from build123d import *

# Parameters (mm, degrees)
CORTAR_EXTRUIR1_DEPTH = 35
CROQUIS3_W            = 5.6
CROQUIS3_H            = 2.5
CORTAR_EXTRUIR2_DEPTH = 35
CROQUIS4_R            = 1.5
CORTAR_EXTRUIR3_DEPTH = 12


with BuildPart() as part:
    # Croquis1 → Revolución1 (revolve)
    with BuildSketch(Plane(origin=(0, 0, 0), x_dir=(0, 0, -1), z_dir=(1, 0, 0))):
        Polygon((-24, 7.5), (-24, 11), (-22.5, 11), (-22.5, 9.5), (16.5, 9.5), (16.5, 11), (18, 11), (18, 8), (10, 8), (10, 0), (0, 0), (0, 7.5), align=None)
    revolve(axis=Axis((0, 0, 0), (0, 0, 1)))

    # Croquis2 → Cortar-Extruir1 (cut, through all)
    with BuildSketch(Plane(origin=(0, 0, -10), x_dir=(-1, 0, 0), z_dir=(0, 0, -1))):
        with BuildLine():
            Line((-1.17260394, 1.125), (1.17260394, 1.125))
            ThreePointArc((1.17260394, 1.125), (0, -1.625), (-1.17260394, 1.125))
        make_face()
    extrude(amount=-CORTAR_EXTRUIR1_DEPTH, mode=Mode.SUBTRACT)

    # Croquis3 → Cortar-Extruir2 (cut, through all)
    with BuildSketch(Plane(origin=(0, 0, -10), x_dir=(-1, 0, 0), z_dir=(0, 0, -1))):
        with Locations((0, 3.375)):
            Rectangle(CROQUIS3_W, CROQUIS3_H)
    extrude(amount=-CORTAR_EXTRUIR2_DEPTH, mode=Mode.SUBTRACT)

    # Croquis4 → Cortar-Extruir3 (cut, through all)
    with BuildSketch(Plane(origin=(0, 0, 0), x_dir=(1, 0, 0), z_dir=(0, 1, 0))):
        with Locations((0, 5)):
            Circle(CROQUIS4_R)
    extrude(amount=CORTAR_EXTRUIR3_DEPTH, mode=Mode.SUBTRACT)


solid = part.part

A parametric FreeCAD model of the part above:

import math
import FreeCAD as App
import Part
import Sketcher

V = App.Vector

doc = App.newDocument("Part")
params = doc.addObject("Spreadsheet::Sheet", "Params")
for row, (alias, value) in enumerate([
    ("sketch1_width", "8 mm"),
    ("sketch1_width2", "3 mm"),
    ("sketch1_height", "24 mm"),
    ("sketch1_height2", "10 mm"),
    ("sketch1_height3", "39 mm"),
    ("revolution_angle", "360 deg"),
    ("sketch3_width", "5.6 mm"),
    ("sketch3_height", "2.5 mm"),
    ("sketch4_diameter", "3 mm"),
], start=1):
    params.set(f"A{row}", alias)
    params.set(f"B{row}", "=" + value)
    params.setAlias(f"B{row}", alias)

body = doc.addObject("PartDesign::Body", "Body")

# Sketch on YZ plane
sketch1 = body.newObject("Sketcher::SketchObject", "Sketch")
sketch1.AttachmentSupport = (doc.getObject("YZ_Plane"), [""])
sketch1.MapMode = "FlatFace"
sketch1.addGeometry([
    Part.LineSegment(V(11, 24, 0), V(7.5, 24, 0)),  # 0
    Part.LineSegment(V(7.5, 24, 0), V(7.5, 0, 0)),  # 1
    Part.LineSegment(V(7.5, 0, 0), V(0, 0, 0)),  # 2
    Part.LineSegment(V(0, 0, 0), V(0, -10, 0)),  # 3
    Part.LineSegment(V(0, -10, 0), V(8, -10, 0)),  # 4
    Part.LineSegment(V(8, -10, 0), V(8, -18, 0)),  # 5
    Part.LineSegment(V(8, -18, 0), V(11, -18, 0)),  # 6
    Part.LineSegment(V(11, -18, 0), V(11, -16.5, 0)),  # 7
    Part.LineSegment(V(11, -16.5, 0), V(9.5, -16.5, 0)),  # 8
    Part.LineSegment(V(9.5, -16.5, 0), V(9.5, 22.5, 0)),  # 9
    Part.LineSegment(V(9.5, 22.5, 0), V(11, 22.5, 0)),  # 10
    Part.LineSegment(V(11, 22.5, 0), V(11, 24, 0)),  # 11
], False)
sketch1.addConstraint([
    Sketcher.Constraint("Coincident", 0, 2, 1, 1),
    Sketcher.Constraint("Coincident", 1, 2, 2, 1),
    Sketcher.Constraint("Coincident", 2, 2, 3, 1),
    Sketcher.Constraint("Coincident", 3, 2, 4, 1),
    Sketcher.Constraint("Coincident", 4, 2, 5, 1),
    Sketcher.Constraint("Coincident", 5, 2, 6, 1),
    Sketcher.Constraint("Coincident", 6, 2, 7, 1),
    Sketcher.Constraint("Coincident", 7, 2, 8, 1),
    Sketcher.Constraint("Coincident", 8, 2, 9, 1),
    Sketcher.Constraint("Coincident", 9, 2, 10, 1),
    Sketcher.Constraint("Coincident", 10, 2, 11, 1),
    Sketcher.Constraint("Coincident", 11, 2, 0, 1),
    Sketcher.Constraint("Horizontal", 0),
    Sketcher.Constraint("Vertical", 1),
    Sketcher.Constraint("Horizontal", 2),
    Sketcher.Constraint("Vertical", 3),
    Sketcher.Constraint("Horizontal", 4),
    Sketcher.Constraint("Vertical", 5),
    Sketcher.Constraint("Horizontal", 6),
    Sketcher.Constraint("Vertical", 7),
    Sketcher.Constraint("Horizontal", 8),
    Sketcher.Constraint("Vertical", 9),
    Sketcher.Constraint("Horizontal", 10),
    Sketcher.Constraint("Vertical", 11),
    Sketcher.Constraint("Coincident", 2, 2, -1, 1),
    Sketcher.Constraint("Vertical", 7, 2, 10, 2),
    Sketcher.Constraint("Equal", 4, 5),
    Sketcher.Constraint("Equal", 10, 7),
    Sketcher.Constraint("Equal", 7, 11),
    Sketcher.Constraint("DistanceX", 4, 1, 4, 2, 8.0),
    Sketcher.Constraint("DistanceX", 6, 1, 6, 2, 3.0),
    Sketcher.Constraint("DistanceY", 1, 2, 1, 1, 24.0),
    Sketcher.Constraint("DistanceY", 3, 2, 3, 1, 10.0),
    Sketcher.Constraint("DistanceY", 9, 1, 9, 2, 39.0),
    Sketcher.Constraint("DistanceX", 0, 2, 0, 1, 3.5),
])
sketch1.setExpression("Constraints[29]", "Params.sketch1_width")
sketch1.setExpression("Constraints[30]", "Params.sketch1_width2")
sketch1.setExpression("Constraints[31]", "Params.sketch1_height")
sketch1.setExpression("Constraints[32]", "Params.sketch1_height2")
sketch1.setExpression("Constraints[33]", "Params.sketch1_height3")
revolution = body.newObject("PartDesign::Revolution", "Revolution")
revolution.Profile = sketch1
revolution.ReferenceAxis = (sketch1, ["V_Axis"])
revolution.setExpression("Angle", "Params.revolution_angle")

# Sketch on XY plane
sketch2 = body.newObject("Sketcher::SketchObject", "Sketch001")
sketch2.AttachmentSupport = (doc.getObject("XY_Plane"), [""])
sketch2.MapMode = "FlatFace"
sketch2.AttachmentOffset = App.Placement(V(0, 0, -10), App.Rotation())
sketch2.addGeometry([
    Part.LineSegment(V(-1.2, 1.1, 0), V(1.2, 1.1, 0)),
    Part.ArcOfCircle(Part.Circle(V(0, 0, 0), V(0, 0, 1), 1.6), math.radians(136), math.radians(404)),
], False)
sketch2.addConstraint([
    Sketcher.Constraint("Coincident", 0, 1, 1, 1),
    Sketcher.Constraint("Coincident", 1, 2, 0, 2),
    Sketcher.Constraint("Horizontal", 0),
    Sketcher.Constraint("Coincident", 1, 3, -1, 1),
    Sketcher.Constraint("Radius", 1, 1.625),
    Sketcher.Constraint("DistanceY", -1, 1, 0, 1, 1.125),
])
pocket1 = body.newObject("PartDesign::Pocket", "Pocket")
pocket1.Profile = sketch2
pocket1.Type = "ThroughAll"
pocket1.Reversed = True

# Sketch on XY plane
sketch3 = body.newObject("Sketcher::SketchObject", "Sketch002")
sketch3.AttachmentSupport = (doc.getObject("XY_Plane"), [""])
sketch3.MapMode = "FlatFace"
sketch3.AttachmentOffset = App.Placement(V(0, 0, -10), App.Rotation())
sketch3.addGeometry([
    Part.LineSegment(V(2.8, 4.6, 0), V(2.8, 2.1, 0)),
    Part.LineSegment(V(2.8, 2.1, 0), V(-2.8, 2.1, 0)),
    Part.LineSegment(V(-2.8, 2.1, 0), V(-2.8, 4.6, 0)),
    Part.LineSegment(V(-2.8, 4.6, 0), V(2.8, 4.6, 0)),
], False)
sketch3.addConstraint([
    Sketcher.Constraint("Coincident", 0, 2, 1, 1),
    Sketcher.Constraint("Coincident", 1, 2, 2, 1),
    Sketcher.Constraint("Coincident", 2, 2, 3, 1),
    Sketcher.Constraint("Coincident", 3, 2, 0, 1),
    Sketcher.Constraint("Vertical", 0),
    Sketcher.Constraint("Horizontal", 1),
    Sketcher.Constraint("Vertical", 2),
    Sketcher.Constraint("Horizontal", 3),
    Sketcher.Constraint("DistanceX", 1, 2, 1, 1, 5.6),
    Sketcher.Constraint("DistanceY", 0, 2, 0, 1, 2.5),
    Sketcher.Constraint("DistanceX", -1, 1, 0, 2, 2.8),
    Sketcher.Constraint("DistanceY", -1, 1, 0, 2, 2.125),
])
sketch3.setExpression("Constraints[8]", "Params.sketch3_width")
sketch3.setExpression("Constraints[9]", "Params.sketch3_height")
pocket2 = body.newObject("PartDesign::Pocket", "Pocket001")
pocket2.Profile = sketch3
pocket2.Type = "ThroughAll"
pocket2.Reversed = True

# Sketch on XZ plane
sketch4 = body.newObject("Sketcher::SketchObject", "Sketch003")
sketch4.AttachmentSupport = (doc.getObject("XZ_Plane"), [""])
sketch4.MapMode = "FlatFace"
sketch4.addGeometry(Part.Circle(V(0, -5, 0), V(0, 0, 1), 1.5), False)
sketch4.addConstraint([
    Sketcher.Constraint("PointOnObject", 0, 3, -2),
    Sketcher.Constraint("Diameter", 0, 3.0),
    Sketcher.Constraint("DistanceY", 0, 3, -1, 1, 5.0),
])
sketch4.setExpression("Constraints[1]", "Params.sketch4_diameter")
pocket3 = body.newObject("PartDesign::Pocket", "Pocket002")
pocket3.Profile = sketch4
pocket3.Type = "ThroughAll"

doc.recompute()
